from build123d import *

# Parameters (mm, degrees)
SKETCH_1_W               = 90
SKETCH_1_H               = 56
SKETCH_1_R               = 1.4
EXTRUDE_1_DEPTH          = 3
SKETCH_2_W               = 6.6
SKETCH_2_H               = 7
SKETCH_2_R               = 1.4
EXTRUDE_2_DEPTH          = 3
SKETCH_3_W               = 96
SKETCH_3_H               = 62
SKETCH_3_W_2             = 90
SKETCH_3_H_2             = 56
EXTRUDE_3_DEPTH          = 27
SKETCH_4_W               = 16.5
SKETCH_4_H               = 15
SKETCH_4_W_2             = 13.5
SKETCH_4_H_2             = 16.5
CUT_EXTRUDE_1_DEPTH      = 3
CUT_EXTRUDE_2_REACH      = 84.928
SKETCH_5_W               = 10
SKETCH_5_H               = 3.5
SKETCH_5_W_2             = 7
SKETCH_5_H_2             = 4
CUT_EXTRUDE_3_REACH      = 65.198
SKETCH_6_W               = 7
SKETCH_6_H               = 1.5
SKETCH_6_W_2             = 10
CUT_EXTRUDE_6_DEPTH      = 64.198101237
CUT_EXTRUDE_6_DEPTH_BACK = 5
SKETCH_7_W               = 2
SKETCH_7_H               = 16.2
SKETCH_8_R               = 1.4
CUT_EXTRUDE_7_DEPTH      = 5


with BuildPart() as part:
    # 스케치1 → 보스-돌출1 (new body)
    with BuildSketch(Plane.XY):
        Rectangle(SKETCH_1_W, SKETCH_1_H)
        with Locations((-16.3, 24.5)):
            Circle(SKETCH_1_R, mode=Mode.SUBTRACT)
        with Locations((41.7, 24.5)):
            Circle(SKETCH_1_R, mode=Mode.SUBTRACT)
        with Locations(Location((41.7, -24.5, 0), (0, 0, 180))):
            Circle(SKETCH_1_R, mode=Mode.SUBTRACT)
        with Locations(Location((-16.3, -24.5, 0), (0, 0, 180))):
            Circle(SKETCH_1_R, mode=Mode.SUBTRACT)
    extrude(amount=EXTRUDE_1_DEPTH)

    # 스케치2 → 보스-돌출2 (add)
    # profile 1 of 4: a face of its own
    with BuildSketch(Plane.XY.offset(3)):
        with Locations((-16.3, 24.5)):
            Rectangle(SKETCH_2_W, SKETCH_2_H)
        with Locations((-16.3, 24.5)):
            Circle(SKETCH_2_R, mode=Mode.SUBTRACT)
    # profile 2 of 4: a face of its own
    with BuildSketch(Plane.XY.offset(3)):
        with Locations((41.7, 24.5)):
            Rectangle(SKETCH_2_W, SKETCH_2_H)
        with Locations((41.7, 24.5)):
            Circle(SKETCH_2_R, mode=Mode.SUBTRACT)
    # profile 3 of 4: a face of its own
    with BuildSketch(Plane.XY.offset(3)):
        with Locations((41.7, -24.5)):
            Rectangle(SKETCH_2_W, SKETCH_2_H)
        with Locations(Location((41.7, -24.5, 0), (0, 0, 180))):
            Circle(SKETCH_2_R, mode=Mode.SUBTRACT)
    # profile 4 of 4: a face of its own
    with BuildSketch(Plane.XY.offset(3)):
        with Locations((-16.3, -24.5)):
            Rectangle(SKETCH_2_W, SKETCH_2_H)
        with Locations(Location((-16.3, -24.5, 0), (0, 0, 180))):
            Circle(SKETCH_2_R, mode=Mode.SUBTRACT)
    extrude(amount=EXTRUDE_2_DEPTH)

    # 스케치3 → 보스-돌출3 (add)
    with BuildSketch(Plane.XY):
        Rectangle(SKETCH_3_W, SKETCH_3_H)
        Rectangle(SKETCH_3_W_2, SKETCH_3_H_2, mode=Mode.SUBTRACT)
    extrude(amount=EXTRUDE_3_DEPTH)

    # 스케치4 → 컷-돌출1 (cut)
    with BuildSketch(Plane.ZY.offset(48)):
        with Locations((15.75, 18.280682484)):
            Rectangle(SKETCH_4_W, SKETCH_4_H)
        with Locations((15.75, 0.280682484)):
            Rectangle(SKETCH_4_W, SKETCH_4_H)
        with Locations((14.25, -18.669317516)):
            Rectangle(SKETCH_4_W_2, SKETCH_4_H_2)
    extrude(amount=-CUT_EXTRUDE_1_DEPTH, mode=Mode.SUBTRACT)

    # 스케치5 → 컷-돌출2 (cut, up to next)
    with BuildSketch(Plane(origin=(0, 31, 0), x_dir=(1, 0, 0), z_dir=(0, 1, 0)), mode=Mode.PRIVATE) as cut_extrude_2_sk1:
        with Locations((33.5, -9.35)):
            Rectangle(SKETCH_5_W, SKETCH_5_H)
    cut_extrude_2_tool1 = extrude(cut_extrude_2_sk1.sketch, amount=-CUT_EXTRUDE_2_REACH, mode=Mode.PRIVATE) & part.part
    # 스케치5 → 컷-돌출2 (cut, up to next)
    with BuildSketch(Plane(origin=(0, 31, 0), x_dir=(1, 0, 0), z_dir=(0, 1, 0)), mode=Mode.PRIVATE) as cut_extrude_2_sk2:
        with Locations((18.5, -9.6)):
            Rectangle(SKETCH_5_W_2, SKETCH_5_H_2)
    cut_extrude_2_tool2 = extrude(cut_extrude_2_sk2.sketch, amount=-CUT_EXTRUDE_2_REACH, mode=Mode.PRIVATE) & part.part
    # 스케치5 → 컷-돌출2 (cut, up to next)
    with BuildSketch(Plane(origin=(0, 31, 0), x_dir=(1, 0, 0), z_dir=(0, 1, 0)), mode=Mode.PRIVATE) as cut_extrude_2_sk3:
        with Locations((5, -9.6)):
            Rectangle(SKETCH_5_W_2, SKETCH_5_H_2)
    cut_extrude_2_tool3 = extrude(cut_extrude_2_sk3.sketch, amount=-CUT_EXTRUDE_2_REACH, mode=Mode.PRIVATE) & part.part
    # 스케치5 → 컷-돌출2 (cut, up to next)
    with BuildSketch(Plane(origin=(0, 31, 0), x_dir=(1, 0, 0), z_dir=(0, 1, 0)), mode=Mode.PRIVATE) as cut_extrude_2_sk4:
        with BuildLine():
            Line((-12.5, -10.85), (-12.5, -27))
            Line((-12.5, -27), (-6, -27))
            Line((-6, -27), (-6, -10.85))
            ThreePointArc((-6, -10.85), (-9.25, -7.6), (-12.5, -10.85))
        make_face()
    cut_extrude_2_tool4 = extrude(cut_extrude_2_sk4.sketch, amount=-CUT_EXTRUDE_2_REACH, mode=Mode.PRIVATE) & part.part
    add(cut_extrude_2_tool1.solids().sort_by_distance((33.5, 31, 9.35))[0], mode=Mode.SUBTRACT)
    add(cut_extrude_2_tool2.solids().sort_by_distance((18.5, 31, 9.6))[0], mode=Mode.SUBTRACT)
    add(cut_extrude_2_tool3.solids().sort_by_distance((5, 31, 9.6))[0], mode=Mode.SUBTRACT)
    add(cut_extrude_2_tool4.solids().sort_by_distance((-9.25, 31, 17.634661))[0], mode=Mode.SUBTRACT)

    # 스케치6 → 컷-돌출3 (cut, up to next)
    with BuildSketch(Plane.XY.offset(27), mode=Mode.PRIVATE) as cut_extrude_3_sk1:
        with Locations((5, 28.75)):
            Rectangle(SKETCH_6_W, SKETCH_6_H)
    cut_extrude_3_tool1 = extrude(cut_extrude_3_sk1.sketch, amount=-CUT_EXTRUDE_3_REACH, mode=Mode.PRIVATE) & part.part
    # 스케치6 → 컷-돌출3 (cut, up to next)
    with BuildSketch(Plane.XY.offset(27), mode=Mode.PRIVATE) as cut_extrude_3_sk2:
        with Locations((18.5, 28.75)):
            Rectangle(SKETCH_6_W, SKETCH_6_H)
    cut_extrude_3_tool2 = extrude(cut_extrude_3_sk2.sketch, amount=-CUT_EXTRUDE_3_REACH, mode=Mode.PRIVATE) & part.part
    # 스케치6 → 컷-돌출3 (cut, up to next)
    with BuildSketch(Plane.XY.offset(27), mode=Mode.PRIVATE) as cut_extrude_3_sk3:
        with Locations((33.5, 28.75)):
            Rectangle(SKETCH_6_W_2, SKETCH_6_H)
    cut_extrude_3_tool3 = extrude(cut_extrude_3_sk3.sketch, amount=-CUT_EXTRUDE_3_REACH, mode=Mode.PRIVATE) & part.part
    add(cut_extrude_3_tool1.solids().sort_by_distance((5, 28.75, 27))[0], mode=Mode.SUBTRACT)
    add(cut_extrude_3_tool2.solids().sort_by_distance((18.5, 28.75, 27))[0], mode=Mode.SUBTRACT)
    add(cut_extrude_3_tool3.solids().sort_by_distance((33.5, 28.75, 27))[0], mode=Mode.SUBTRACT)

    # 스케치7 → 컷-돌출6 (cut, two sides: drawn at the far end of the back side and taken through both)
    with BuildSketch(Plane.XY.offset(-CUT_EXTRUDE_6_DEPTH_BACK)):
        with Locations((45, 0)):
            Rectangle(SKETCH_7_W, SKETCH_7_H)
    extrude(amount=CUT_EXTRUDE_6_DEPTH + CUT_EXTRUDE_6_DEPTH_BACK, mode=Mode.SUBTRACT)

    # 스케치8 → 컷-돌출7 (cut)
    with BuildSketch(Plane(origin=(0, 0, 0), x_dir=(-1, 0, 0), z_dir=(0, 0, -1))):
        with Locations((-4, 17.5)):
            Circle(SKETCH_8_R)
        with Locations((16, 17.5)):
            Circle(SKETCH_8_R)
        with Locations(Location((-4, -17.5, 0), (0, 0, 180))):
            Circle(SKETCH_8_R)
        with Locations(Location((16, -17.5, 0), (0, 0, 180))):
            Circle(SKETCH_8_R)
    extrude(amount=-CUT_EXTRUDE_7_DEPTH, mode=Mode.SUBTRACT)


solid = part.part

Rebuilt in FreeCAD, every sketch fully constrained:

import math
import FreeCAD as App
import Part
import Sketcher
from FreeCAD import Vector
Q = App.Units.Quantity


def add_polygon(sketch, points):
    """Adds a closed chain of lines whose ends are joined by coincident constraints."""
    first, n = sketch.GeometryCount, len(points)
    for a, b in zip(points, points[1:] + points[:1]):
        sketch.addGeometry(Part.LineSegment(App.Vector(*a, 0), App.Vector(*b, 0)), False)
    for i in range(n):
        sketch.addConstraint(Sketcher.Constraint("Coincident", first + i, 2, first + (i + 1) % n, 1))

doc = App.newDocument("Part")
body = doc.addObject("PartDesign::Body", "Body")

sketch1 = doc.addObject("Sketcher::SketchObject", "Sketch")
body.addObject(sketch1)
sketch1.AttachmentSupport = (doc.XY_Plane, [""])
sketch1.MapMode = "FlatFace"
add_polygon(sketch1, [(-45, 28), (-45, -28), (45, -28), (45, 28)])
sketch1.addGeometry(Part.Circle(Vector(-16.3, -24.5, 0), Vector(0, 0, 1), 1.4), False)
sketch1.addGeometry(Part.Circle(Vector(41.7, -24.5, 0), Vector(0, 0, 1), 1.4), False)
sketch1.addGeometry(Part.Circle(Vector(-16.3, 24.5, 0), Vector(0, 0, 1), 1.4), False)
sketch1.addGeometry(Part.Circle(Vector(41.7, 24.5, 0), Vector(0, 0, 1), 1.4), False)
sketch1.addConstraint([
    Sketcher.Constraint("Vertical", 0),
    Sketcher.Constraint("Horizontal", 1),
    Sketcher.Constraint("Vertical", 2),
    Sketcher.Constraint("Horizontal", 3),
    Sketcher.Constraint("Equal", 4, 5),
    Sketcher.Constraint("Equal", 5, 6),
    Sketcher.Constraint("Equal", 6, 7),
    Sketcher.Constraint("Symmetric", 0, 2, 2, 2, -1, 1),
    Sketcher.Constraint("Symmetric", 4, 3, 6, 3, -1),
    Sketcher.Constraint("Symmetric", 5, 3, 7, 3, -1),
    Sketcher.Constraint("Horizontal", 4, 3, 5, 3),
    Sketcher.Constraint("Diameter", 4, Q("2.8 mm")),
    Sketcher.Constraint("DistanceX", 1, 1, 1, 2, Q("90 mm")),
    Sketcher.Constraint("DistanceY", 0, 2, 0, 1, Q("56 mm")),
    Sketcher.Constraint("DistanceX", 4, 3, 5, 3, Q("58 mm")),
    Sketcher.Constraint("DistanceY", 4, 3, 6, 3, Q("49 mm")),
    Sketcher.Constraint("DistanceX", 4, 3, -1, 1, Q("16.3 mm")),
])
pad1 = doc.addObject("PartDesign::Pad", "Pad")
body.addObject(pad1)
pad1.Profile = sketch1
pad1.Length = 3

sketch2 = doc.addObject("Sketcher::SketchObject", "Sketch001")
body.addObject(sketch2)
sketch2.AttachmentSupport = (doc.XY_Plane, [""])
sketch2.MapMode = "FlatFace"
sketch2.AttachmentOffset = App.Placement(Vector(0, 0, 3), App.Rotation())
add_polygon(sketch2, [(-19.6, 28), (-19.6, 21), (-13, 21), (-13, 28)])
sketch2.addGeometry(Part.Circle(Vector(-16.3, 24.5, 0), Vector(0, 0, 1), 1.4), False)
add_polygon(sketch2, [(38.4, 28), (38.4, 21), (45, 21), (45, 28)])
sketch2.addGeometry(Part.Circle(Vector(41.7, 24.5, 0), Vector(0, 0, 1), 1.4), False)
add_polygon(sketch2, [(38.4, -21), (38.4, -28), (45, -28), (45, -21)])
sketch2.addGeometry(Part.Circle(Vector(41.7, -24.5, 0), Vector(0, 0, 1), 1.4), False)
add_polygon(sketch2, [(-19.6, -21), (-19.6, -28), (-13, -28), (-13, -21)])
sketch2.addGeometry(Part.Circle(Vector(-16.3, -24.5, 0), Vector(0, 0, 1), 1.4), False)
sketch2.addConstraint([
    Sketcher.Constraint("Vertical", 0),
    Sketcher.Constraint("Horizontal", 1),
    Sketcher.Constraint("Vertical", 2),
    Sketcher.Constraint("Horizontal", 3),
    Sketcher.Constraint("Vertical", 5),
    Sketcher.Constraint("Horizontal", 6),
    Sketcher.Constraint("Vertical", 7),
    Sketcher.Constraint("Horizontal", 8),
    Sketcher.Constraint("Vertical", 10),
    Sketcher.Constraint("Horizontal", 11),
    Sketcher.Constraint("Vertical", 12),
    Sketcher.Constraint("Horizontal", 13),
    Sketcher.Constraint("Vertical", 15),
    Sketcher.Constraint("Horizontal", 16),
    Sketcher.Constraint("Vertical", 17),
    Sketcher.Constraint("Horizontal", 18),
    Sketcher.Constraint("Equal", 4, 9),
    Sketcher.Constraint("Equal", 9, 14),
    Sketcher.Constraint("Equal", 14, 19),
    Sketcher.Constraint("Symmetric", 9, 3, 14, 3, -1),
    Sketcher.Constraint("Symmetric", 4, 3, 19, 3, -1),
    Sketcher.Constraint("Symmetric", 8, 2, 10, 2, -1),
    Sketcher.Constraint("Symmetric", 6, 2, 12, 2, -1),
    Sketcher.Constraint("Symmetric", 3, 2, 15, 2, -1),
    Sketcher.Constraint("Symmetric", 1, 2, 17, 2, -1),
    Sketcher.Constraint("Horizontal", 4, 3, 9, 3),
    Sketcher.Constraint("Horizontal", 1, 2, 5, 2),
    Sketcher.Constraint("Horizontal", 3, 2, 7, 2),
    Sketcher.Constraint("Equal", 3, 6),
    Sketcher.Constraint("Diameter", 4, Q("2.8 mm")),
    Sketcher.Constraint("DistanceY", 0, 2, 0, 1, Q("7 mm")),
    Sketcher.Constraint("DistanceX", 1, 1, 1, 2, Q("6.6 mm")),
    Sketcher.Constraint("DistanceY", -1, 1, 0, 2, Q("21 mm")),
    Sketcher.Constraint("DistanceX", 1, 2, -1, 1, Q("13 mm")),
    Sketcher.Constraint("DistanceX", -1, 1, 6, 2, Q("45 mm")),
    Sketcher.Constraint("DistanceX", 4, 3, 9, 3, Q("58 mm")),
    Sketcher.Constraint("DistanceY", 14, 3, 9, 3, Q("49 mm")),
    Sketcher.Constraint("DistanceX", 4, 3, -1, 1, Q("16.3 mm")),
])
pad2 = doc.addObject("PartDesign::Pad", "Pad001")
body.addObject(pad2)
pad2.Profile = sketch2
pad2.Length = 3

sketch3 = doc.addObject("Sketcher::SketchObject", "Sketch002")
body.addObject(sketch3)
sketch3.AttachmentSupport = (doc.XY_Plane, [""])
sketch3.MapMode = "FlatFace"
add_polygon(sketch3, [(-48, 31), (-48, -31), (48, -31), (48, 31)])
add_polygon(sketch3, [(45, -28), (-45, -28), (-45, 28), (45, 28)])
sketch3.addConstraint([
    Sketcher.Constraint("Vertical", 0),
    Sketcher.Constraint("Horizontal", 1),
    Sketcher.Constraint("Vertical", 2),
    Sketcher.Constraint("Horizontal", 3),
    Sketcher.Constraint("Horizontal", 4),
    Sketcher.Constraint("Vertical", 5),
    Sketcher.Constraint("Horizontal", 6),
    Sketcher.Constraint("Vertical", 7),
    Sketcher.Constraint("Symmetric", 0, 2, 2, 2, -1, 1),
    Sketcher.Constraint("Symmetric", 4, 2, 6, 2, -1, 1),
    Sketcher.Constraint("DistanceX", 1, 1, 1, 2, Q("96 mm")),
    Sketcher.Constraint("DistanceX", 4, 2, 4, 1, Q("90 mm")),
    Sketcher.Constraint("DistanceY", 0, 2, 0, 1, Q("62 mm")),
    Sketcher.Constraint("DistanceY", 5, 1, 5, 2, Q("56 mm")),
])
pad3 = doc.addObject("PartDesign::Pad", "Pad002")
body.addObject(pad3)
pad3.Profile = sketch3
pad3.Length = 27

sketch4 = doc.addObject("Sketcher::SketchObject", "Sketch003")
body.addObject(sketch4)
sketch4.AttachmentSupport = (doc.YZ_Plane, [""])
sketch4.MapMode = "FlatFace"
sketch4.AttachmentOffset = App.Placement(Vector(0, 0, -48), App.Rotation())
add_polygon(sketch4, [(26, 8), (11, 8), (11, 24), (26, 24)])
add_polygon(sketch4, [(8, 8), (-7, 8), (-7, 24), (8, 24)])
add_polygon(sketch4, [(-10, 8), (-27, 8), (-27, 21), (-10, 21)])
sketch4.addConstraint([
    Sketcher.Constraint("Horizontal", 0),
    Sketcher.Constraint("Vertical", 1),
    Sketcher.Constraint("Horizontal", 2),
    Sketcher.Constraint("Vertical", 3),
    Sketcher.Constraint("Horizontal", 4),
    Sketcher.Constraint("Vertical", 5),
    Sketcher.Constraint("Horizontal", 6),
    Sketcher.Constraint("Vertical", 7),
    Sketcher.Constraint("Horizontal", 8),
    Sketcher.Constraint("Vertical", 9),
    Sketcher.Constraint("Horizontal", 10),
    Sketcher.Constraint("Vertical", 11),
    Sketcher.Constraint("Horizontal", 3, 2, 4, 2),
    Sketcher.Constraint("Horizontal", 2, 2, 5, 2),
    Sketcher.Constraint("Horizontal", 7, 2, 8, 2),
    Sketcher.Constraint("Equal", 2, 4),
    Sketcher.Constraint("Equal", 10, 1),
    Sketcher.Constraint("DistanceX", 0, 2, 0, 1, Q("15 mm")),
    Sketcher.Constraint("DistanceX", 8, 2, 8, 1, Q("16.5 mm")),
    Sketcher.Constraint("DistanceY", 9, 1, 9, 2, Q("13.5 mm")),
    Sketcher.Constraint("DistanceY", -1, 1, 1, 2, Q("24 mm")),
    Sketcher.Constraint("DistanceX", 4, 2, 0, 2, Q("18 mm")),
    Sketcher.Constraint("DistanceX", 8, 2, 4, 2, Q("19.7 mm")),
    Sketcher.Constraint("DistanceX", -1, 1, 0, 2, Q("10.780682 mm")),
])
pocket1 = doc.addObject("PartDesign::Pocket", "Pocket")
body.addObject(pocket1)
pocket1.Profile = sketch4
pocket1.Length = 3
pocket1.Reversed = True

sketch5 = doc.addObject("Sketcher::SketchObject", "Sketch004")
body.addObject(sketch5)
sketch5.AttachmentSupport = (doc.XZ_Plane, [""])
sketch5.MapMode = "FlatFace"
sketch5.AttachmentOffset = App.Placement(Vector(0, 0, -31), App.Rotation())
add_polygon(sketch5, [(28.5, 7.6), (28.5, 11.1), (38.5, 11.1), (38.5, 7.6)])
sketch5.addConstraint([
    Sketcher.Constraint("Vertical", 0),
    Sketcher.Constraint("Horizontal", 1),
    Sketcher.Constraint("Vertical", 2),
    Sketcher.Constraint("Horizontal", 3),
    Sketcher.Constraint("DistanceX", 1, 1, 1, 2, Q("10 mm")),
    Sketcher.Constraint("DistanceY", 0, 1, 0, 2, Q("3.5 mm")),
    Sketcher.Constraint("DistanceX", -1, 1, 0, 2, Q("28.5 mm")),
    Sketcher.Constraint("DistanceY", -1, 1, 0, 2, Q("11.1 mm")),
])
pocket2 = doc.addObject("PartDesign::Pocket", "Pocket001")
body.addObject(pocket2)
pocket2.Profile = sketch5
pocket2.Type = "UpToFirst"
pocket2.Reversed = True

sketch6 = doc.addObject("Sketcher::SketchObject", "Sketch005")
body.addObject(sketch6)
sketch6.AttachmentSupport = (doc.XZ_Plane, [""])
sketch6.MapMode = "FlatFace"
sketch6.AttachmentOffset = App.Placement(Vector(0, 0, -31), App.Rotation())
add_polygon(sketch6, [(15, 7.6), (15, 11.6), (22, 11.6), (22, 7.6)])
sketch6.addConstraint([
    Sketcher.Constraint("Vertical", 0),
    Sketcher.Constraint("Horizontal", 1),
    Sketcher.Constraint("Vertical", 2),
    Sketcher.Constraint("Horizontal", 3),
    Sketcher.Constraint("DistanceX", 1, 1, 1, 2, Q("7 mm")),
    Sketcher.Constraint("DistanceY", 0, 1, 0, 2, Q("4 mm")),
    Sketcher.Constraint("DistanceX", -1, 1, 0, 2, Q("15 mm")),
    Sketcher.Constraint("DistanceY", -1, 1, 0, 2, Q("11.6 mm")),
])
pocket3 = doc.addObject("PartDesign::Pocket", "Pocket002")
body.addObject(pocket3)
pocket3.Profile = sketch6
pocket3.Type = "UpToFirst"
pocket3.Reversed = True

sketch7 = doc.addObject("Sketcher::SketchObject", "Sketch006")
body.addObject(sketch7)
sketch7.AttachmentSupport = (doc.XZ_Plane, [""])
sketch7.MapMode = "FlatFace"
sketch7.AttachmentOffset = App.Placement(Vector(0, 0, -31), App.Rotation())
add_polygon(sketch7, [(1.5, 7.6), (1.5, 11.6), (8.5, 11.6), (8.5, 7.6)])
sketch7.addConstraint([
    Sketcher.Constraint("Vertical", 0),
    Sketcher.Constraint("Horizontal", 1),
    Sketcher.Constraint("Vertical", 2),
    Sketcher.Constraint("Horizontal", 3),
    Sketcher.Constraint("DistanceX", 1, 1, 1, 2, Q("7 mm")),
    Sketcher.Constraint("DistanceY", 0, 1, 0, 2, Q("4 mm")),
    Sketcher.Constraint("DistanceX", -1, 1, 0, 2, Q("1.5 mm")),
    Sketcher.Constraint("DistanceY", -1, 1, 0, 2, Q("11.6 mm")),
])
pocket4 = doc.addObject("PartDesign::Pocket", "Pocket003")
body.addObject(pocket4)
pocket4.Profile = sketch7
pocket4.Type = "UpToFirst"
pocket4.Reversed = True

sketch8 = doc.addObject("Sketcher::SketchObject", "Sketch007")
body.addObject(sketch8)
sketch8.AttachmentSupport = (doc.XZ_Plane, [""])
sketch8.MapMode = "FlatFace"
sketch8.AttachmentOffset = App.Placement(Vector(0, 0, -31), App.Rotation())
sketch8.addGeometry([
    Part.LineSegment(Vector(-12.5, 10.8, 0), Vector(-12.5, 27, 0)),
    Part.LineSegment(Vector(-12.5, 27, 0), Vector(-6, 27, 0)),
    Part.LineSegment(Vector(-6, 27, 0), Vector(-6, 10.8, 0)),
    Part.ArcOfCircle(Part.Circle(Vector(-9.2, 10.8, 0), Vector(0, 0, 1), 3.2), math.radians(180), math.radians(360)),
], False)
sketch8.addConstraint([
    Sketcher.Constraint("Coincident", 0, 2, 1, 1),
    Sketcher.Constraint("Coincident", 1, 2, 2, 1),
    Sketcher.Constraint("Tangent", 2, 2, 3, 2),
    Sketcher.Constraint("Tangent", 3, 1, 0, 1),
    Sketcher.Constraint("Vertical", 0),
    Sketcher.Constraint("Horizontal", 1),
    Sketcher.Constraint("Vertical", 2),
    Sketcher.Constraint("Radius", 3, Q("3.25 mm")),
    Sketcher.Constraint("DistanceY", -1, 1, 0, 2, Q("27 mm")),
    Sketcher.Constraint("DistanceX", 1, 2, -1, 1, Q("6 mm")),
    Sketcher.Constraint("DistanceY", 0, 1, 0, 2, Q("16.15 mm")),
])
pocket5 = doc.addObject("PartDesign::Pocket", "Pocket004")
body.addObject(pocket5)
pocket5.Profile = sketch8
pocket5.Type = "UpToFirst"
pocket5.Reversed = True

sketch9 = doc.addObject("Sketcher::SketchObject", "Sketch008")
body.addObject(sketch9)
sketch9.AttachmentSupport = (doc.XY_Plane, [""])
sketch9.MapMode = "FlatFace"
sketch9.AttachmentOffset = App.Placement(Vector(0, 0, 27), App.Rotation())
add_polygon(sketch9, [(1.5, 29.5), (1.5, 28), (8.5, 28), (8.5, 29.5)])
sketch9.addConstraint([
    Sketcher.Constraint("Vertical", 0),
    Sketcher.Constraint("Horizontal", 1),
    Sketcher.Constraint("Vertical", 2),
    Sketcher.Constraint("Horizontal", 3),
    Sketcher.Constraint("DistanceX", 1, 1, 1, 2, Q("7 mm")),
    Sketcher.Constraint("DistanceY", 0, 2, 0, 1, Q("1.5 mm")),
    Sketcher.Constraint("DistanceY", -1, 1, 0, 2, Q("28 mm")),
    Sketcher.Constraint("DistanceX", -1, 1, 0, 2, Q("1.5 mm")),
])
pocket6 = doc.addObject("PartDesign::Pocket", "Pocket005")
body.addObject(pocket6)
pocket6.Profile = sketch9
pocket6.Type = "UpToFirst"

sketch10 = doc.addObject("Sketcher::SketchObject", "Sketch009")
body.addObject(sketch10)
sketch10.AttachmentSupport = (doc.XY_Plane, [""])
sketch10.MapMode = "FlatFace"
sketch10.AttachmentOffset = App.Placement(Vector(0, 0, 27), App.Rotation())
add_polygon(sketch10, [(15, 29.5), (15, 28), (22, 28), (22, 29.5)])
sketch10.addConstraint([
    Sketcher.Constraint("Vertical", 0),
    Sketcher.Constraint("Horizontal", 1),
    Sketcher.Constraint("Vertical", 2),
    Sketcher.Constraint("Horizontal", 3),
    Sketcher.Constraint("DistanceX", 1, 1, 1, 2, Q("7 mm")),
    Sketcher.Constraint("DistanceY", 0, 2, 0, 1, Q("1.5 mm")),
    Sketcher.Constraint("DistanceX", -1, 1, 0, 2, Q("15 mm")),
    Sketcher.Constraint("DistanceY", -1, 1, 0, 2, Q("28 mm")),
])
pocket7 = doc.addObject("PartDesign::Pocket", "Pocket006")
body.addObject(pocket7)
pocket7.Profile = sketch10
pocket7.Type = "UpToFirst"

sketch11 = doc.addObject("Sketcher::SketchObject", "Sketch010")
body.addObject(sketch11)
sketch11.AttachmentSupport = (doc.XY_Plane, [""])
sketch11.MapMode = "FlatFace"
sketch11.AttachmentOffset = App.Placement(Vector(0, 0, 27), App.Rotation())
add_polygon(sketch11, [(28.5, 29.5), (28.5, 28), (38.5, 28), (38.5, 29.5)])
sketch11.addConstraint([
    Sketcher.Constraint("Vertical", 0),
    Sketcher.Constraint("Horizontal", 1),
    Sketcher.Constraint("Vertical", 2),
    Sketcher.Constraint("Horizontal", 3),
    Sketcher.Constraint("DistanceX", 1, 1, 1, 2, Q("10 mm")),
    Sketcher.Constraint("DistanceY", 0, 2, 0, 1, Q("1.5 mm")),
    Sketcher.Constraint("DistanceY", -1, 1, 0, 2, Q("28 mm")),
    Sketcher.Constraint("DistanceX", -1, 1, 0, 2, Q("28.5 mm")),
])
pocket8 = doc.addObject("PartDesign::Pocket", "Pocket007")
body.addObject(pocket8)
pocket8.Profile = sketch11
pocket8.Type = "UpToFirst"

sketch12 = doc.addObject("Sketcher::SketchObject", "Sketch011")
body.addObject(sketch12)
sketch12.AttachmentSupport = (doc.XY_Plane, [""])
sketch12.MapMode = "FlatFace"
add_polygon(sketch12, [(44, 8.1), (44, -8.1), (46, -8.1), (46, 8.1)])
sketch12.addConstraint([
    Sketcher.Constraint("Vertical", 0),
    Sketcher.Constraint("Horizontal", 1),
    Sketcher.Constraint("Vertical", 2),
    Sketcher.Constraint("Horizontal", 3),
    Sketcher.Constraint("DistanceX", 1, 1, 1, 2, Q("2 mm")),
    Sketcher.Constraint("DistanceY", 0, 2, 0, 1, Q("16.2 mm")),
    Sketcher.Constraint("DistanceX", -1, 1, 0, 2, Q("44 mm")),
    Sketcher.Constraint("DistanceY", 0, 2, -1, 1, Q("8.1 mm")),
])
pocket9 = doc.addObject("PartDesign::Pocket", "Pocket008")
body.addObject(pocket9)
pocket9.Profile = sketch12
pocket9.Type = "ThroughAll"
pocket9.Midplane = True

sketch13 = doc.addObject("Sketcher::SketchObject", "Sketch012")
body.addObject(sketch13)
sketch13.AttachmentSupport = (doc.XY_Plane, [""])
sketch13.MapMode = "FlatFace"
sketch13.addGeometry([
    Part.Circle(Vector(4, 17.5, 0), Vector(0, 0, 1), 1.4),
    Part.Circle(Vector(-16, 17.5, 0), Vector(0, 0, 1), 1.4),
    Part.Circle(Vector(4, -17.5, 0), Vector(0, 0, 1), 1.4),
    Part.Circle(Vector(-16, -17.5, 0), Vector(0, 0, 1), 1.4),
], False)
sketch13.addConstraint([
    Sketcher.Constraint("Equal", 0, 1),
    Sketcher.Constraint("Equal", 1, 2),
    Sketcher.Constraint("Equal", 2, 3),
    Sketcher.Constraint("Symmetric", 0, 3, 2, 3, -1),
    Sketcher.Constraint("Symmetric", 1, 3, 3, 3, -1),
    Sketcher.Constraint("Horizontal", 0, 3, 1, 3),
    Sketcher.Constraint("Diameter", 0, Q("2.8 mm")),
    Sketcher.Constraint("DistanceX", -1, 1, 0, 3, Q("4 mm")),
    Sketcher.Constraint("DistanceX", 1, 3, -1, 1, Q("16 mm")),
    Sketcher.Constraint("DistanceY", 2, 3, 0, 3, Q("35 mm")),
])
pocket10 = doc.addObject("PartDesign::Pocket", "Pocket009")
body.addObject(pocket10)
pocket10.Profile = sketch13
pocket10.Length = 5
pocket10.Reversed = True

doc.recompute()
